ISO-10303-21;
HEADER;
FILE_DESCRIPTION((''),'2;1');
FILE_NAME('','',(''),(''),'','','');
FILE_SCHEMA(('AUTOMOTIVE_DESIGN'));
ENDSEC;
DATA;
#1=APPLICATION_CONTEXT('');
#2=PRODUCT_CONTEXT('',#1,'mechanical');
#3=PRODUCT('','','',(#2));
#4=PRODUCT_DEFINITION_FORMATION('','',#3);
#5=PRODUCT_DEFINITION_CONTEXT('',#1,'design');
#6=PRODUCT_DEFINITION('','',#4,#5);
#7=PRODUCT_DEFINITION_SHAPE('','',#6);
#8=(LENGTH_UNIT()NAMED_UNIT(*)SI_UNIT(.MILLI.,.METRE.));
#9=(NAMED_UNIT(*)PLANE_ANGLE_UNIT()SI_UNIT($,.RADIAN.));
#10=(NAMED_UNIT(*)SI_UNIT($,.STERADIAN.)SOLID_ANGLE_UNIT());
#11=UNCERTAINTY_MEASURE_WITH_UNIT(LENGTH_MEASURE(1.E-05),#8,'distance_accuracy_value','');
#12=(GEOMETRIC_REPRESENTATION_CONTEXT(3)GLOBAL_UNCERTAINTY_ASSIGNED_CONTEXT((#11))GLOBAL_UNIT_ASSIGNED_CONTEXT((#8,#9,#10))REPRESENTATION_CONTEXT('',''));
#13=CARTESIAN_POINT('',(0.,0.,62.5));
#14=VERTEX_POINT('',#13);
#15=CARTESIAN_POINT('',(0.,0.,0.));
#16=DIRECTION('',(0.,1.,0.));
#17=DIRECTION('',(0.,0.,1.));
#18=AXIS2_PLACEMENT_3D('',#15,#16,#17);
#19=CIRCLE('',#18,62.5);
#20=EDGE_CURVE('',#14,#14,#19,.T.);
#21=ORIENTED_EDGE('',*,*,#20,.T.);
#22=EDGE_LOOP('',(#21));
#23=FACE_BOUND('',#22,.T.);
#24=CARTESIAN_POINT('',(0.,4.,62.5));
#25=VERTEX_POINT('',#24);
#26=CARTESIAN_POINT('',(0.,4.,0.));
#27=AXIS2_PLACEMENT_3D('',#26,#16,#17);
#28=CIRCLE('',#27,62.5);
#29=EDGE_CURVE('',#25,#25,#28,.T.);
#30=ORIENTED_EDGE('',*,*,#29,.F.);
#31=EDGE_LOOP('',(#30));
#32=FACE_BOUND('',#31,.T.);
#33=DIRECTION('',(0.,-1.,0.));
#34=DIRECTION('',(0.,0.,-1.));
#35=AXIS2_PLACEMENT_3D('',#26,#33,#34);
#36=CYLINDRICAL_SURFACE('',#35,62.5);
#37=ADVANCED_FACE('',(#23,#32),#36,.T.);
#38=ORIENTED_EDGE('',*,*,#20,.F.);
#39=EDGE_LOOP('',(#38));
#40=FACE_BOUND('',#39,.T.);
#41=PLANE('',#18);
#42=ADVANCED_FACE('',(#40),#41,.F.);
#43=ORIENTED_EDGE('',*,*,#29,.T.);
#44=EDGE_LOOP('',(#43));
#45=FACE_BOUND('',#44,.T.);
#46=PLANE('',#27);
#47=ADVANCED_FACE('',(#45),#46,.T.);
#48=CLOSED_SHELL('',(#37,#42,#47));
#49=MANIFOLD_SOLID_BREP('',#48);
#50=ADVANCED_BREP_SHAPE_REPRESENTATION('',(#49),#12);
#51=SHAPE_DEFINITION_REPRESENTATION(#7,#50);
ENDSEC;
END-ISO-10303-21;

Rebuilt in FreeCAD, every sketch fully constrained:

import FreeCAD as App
import Part
import Sketcher
Q = App.Units.Quantity

doc = App.newDocument("Part")
params = doc.addObject("Spreadsheet::Sheet", "Params")
for row, (alias, value) in enumerate([
    ("sketch1_diameter", "125 mm"),
    ("pad1_length", "4 mm"),
], start=1):
    params.set(f"A{row}", alias)
    params.set(f"B{row}", "=" + value)
    params.setAlias(f"B{row}", alias)

body = doc.addObject("PartDesign::Body", "Body")

# Sketch on XZ plane
sketch1 = doc.addObject("Sketcher::SketchObject", "Sketch")
body.addObject(sketch1)
sketch1.AttachmentSupport = (doc.XZ_Plane, [""])
sketch1.MapMode = "FlatFace"
sketch1.addGeometry(Part.Circle(App.Vector(0, 0, 0), App.Vector(0, 0, 1), 62.5), False)
sketch1.addConstraint([
    Sketcher.Constraint("Coincident", 0, 3, -1, 1),
    Sketcher.Constraint("Diameter", 0, Q("125 mm")),
])
sketch1.setExpression("Constraints[1]", "Params.sketch1_diameter")
pad1 = doc.addObject("PartDesign::Pad", "Pad")
body.addObject(pad1)
pad1.Profile = sketch1
pad1.setExpression("Length", "Params.pad1_length")
pad1.Reversed = True

doc.recompute()
